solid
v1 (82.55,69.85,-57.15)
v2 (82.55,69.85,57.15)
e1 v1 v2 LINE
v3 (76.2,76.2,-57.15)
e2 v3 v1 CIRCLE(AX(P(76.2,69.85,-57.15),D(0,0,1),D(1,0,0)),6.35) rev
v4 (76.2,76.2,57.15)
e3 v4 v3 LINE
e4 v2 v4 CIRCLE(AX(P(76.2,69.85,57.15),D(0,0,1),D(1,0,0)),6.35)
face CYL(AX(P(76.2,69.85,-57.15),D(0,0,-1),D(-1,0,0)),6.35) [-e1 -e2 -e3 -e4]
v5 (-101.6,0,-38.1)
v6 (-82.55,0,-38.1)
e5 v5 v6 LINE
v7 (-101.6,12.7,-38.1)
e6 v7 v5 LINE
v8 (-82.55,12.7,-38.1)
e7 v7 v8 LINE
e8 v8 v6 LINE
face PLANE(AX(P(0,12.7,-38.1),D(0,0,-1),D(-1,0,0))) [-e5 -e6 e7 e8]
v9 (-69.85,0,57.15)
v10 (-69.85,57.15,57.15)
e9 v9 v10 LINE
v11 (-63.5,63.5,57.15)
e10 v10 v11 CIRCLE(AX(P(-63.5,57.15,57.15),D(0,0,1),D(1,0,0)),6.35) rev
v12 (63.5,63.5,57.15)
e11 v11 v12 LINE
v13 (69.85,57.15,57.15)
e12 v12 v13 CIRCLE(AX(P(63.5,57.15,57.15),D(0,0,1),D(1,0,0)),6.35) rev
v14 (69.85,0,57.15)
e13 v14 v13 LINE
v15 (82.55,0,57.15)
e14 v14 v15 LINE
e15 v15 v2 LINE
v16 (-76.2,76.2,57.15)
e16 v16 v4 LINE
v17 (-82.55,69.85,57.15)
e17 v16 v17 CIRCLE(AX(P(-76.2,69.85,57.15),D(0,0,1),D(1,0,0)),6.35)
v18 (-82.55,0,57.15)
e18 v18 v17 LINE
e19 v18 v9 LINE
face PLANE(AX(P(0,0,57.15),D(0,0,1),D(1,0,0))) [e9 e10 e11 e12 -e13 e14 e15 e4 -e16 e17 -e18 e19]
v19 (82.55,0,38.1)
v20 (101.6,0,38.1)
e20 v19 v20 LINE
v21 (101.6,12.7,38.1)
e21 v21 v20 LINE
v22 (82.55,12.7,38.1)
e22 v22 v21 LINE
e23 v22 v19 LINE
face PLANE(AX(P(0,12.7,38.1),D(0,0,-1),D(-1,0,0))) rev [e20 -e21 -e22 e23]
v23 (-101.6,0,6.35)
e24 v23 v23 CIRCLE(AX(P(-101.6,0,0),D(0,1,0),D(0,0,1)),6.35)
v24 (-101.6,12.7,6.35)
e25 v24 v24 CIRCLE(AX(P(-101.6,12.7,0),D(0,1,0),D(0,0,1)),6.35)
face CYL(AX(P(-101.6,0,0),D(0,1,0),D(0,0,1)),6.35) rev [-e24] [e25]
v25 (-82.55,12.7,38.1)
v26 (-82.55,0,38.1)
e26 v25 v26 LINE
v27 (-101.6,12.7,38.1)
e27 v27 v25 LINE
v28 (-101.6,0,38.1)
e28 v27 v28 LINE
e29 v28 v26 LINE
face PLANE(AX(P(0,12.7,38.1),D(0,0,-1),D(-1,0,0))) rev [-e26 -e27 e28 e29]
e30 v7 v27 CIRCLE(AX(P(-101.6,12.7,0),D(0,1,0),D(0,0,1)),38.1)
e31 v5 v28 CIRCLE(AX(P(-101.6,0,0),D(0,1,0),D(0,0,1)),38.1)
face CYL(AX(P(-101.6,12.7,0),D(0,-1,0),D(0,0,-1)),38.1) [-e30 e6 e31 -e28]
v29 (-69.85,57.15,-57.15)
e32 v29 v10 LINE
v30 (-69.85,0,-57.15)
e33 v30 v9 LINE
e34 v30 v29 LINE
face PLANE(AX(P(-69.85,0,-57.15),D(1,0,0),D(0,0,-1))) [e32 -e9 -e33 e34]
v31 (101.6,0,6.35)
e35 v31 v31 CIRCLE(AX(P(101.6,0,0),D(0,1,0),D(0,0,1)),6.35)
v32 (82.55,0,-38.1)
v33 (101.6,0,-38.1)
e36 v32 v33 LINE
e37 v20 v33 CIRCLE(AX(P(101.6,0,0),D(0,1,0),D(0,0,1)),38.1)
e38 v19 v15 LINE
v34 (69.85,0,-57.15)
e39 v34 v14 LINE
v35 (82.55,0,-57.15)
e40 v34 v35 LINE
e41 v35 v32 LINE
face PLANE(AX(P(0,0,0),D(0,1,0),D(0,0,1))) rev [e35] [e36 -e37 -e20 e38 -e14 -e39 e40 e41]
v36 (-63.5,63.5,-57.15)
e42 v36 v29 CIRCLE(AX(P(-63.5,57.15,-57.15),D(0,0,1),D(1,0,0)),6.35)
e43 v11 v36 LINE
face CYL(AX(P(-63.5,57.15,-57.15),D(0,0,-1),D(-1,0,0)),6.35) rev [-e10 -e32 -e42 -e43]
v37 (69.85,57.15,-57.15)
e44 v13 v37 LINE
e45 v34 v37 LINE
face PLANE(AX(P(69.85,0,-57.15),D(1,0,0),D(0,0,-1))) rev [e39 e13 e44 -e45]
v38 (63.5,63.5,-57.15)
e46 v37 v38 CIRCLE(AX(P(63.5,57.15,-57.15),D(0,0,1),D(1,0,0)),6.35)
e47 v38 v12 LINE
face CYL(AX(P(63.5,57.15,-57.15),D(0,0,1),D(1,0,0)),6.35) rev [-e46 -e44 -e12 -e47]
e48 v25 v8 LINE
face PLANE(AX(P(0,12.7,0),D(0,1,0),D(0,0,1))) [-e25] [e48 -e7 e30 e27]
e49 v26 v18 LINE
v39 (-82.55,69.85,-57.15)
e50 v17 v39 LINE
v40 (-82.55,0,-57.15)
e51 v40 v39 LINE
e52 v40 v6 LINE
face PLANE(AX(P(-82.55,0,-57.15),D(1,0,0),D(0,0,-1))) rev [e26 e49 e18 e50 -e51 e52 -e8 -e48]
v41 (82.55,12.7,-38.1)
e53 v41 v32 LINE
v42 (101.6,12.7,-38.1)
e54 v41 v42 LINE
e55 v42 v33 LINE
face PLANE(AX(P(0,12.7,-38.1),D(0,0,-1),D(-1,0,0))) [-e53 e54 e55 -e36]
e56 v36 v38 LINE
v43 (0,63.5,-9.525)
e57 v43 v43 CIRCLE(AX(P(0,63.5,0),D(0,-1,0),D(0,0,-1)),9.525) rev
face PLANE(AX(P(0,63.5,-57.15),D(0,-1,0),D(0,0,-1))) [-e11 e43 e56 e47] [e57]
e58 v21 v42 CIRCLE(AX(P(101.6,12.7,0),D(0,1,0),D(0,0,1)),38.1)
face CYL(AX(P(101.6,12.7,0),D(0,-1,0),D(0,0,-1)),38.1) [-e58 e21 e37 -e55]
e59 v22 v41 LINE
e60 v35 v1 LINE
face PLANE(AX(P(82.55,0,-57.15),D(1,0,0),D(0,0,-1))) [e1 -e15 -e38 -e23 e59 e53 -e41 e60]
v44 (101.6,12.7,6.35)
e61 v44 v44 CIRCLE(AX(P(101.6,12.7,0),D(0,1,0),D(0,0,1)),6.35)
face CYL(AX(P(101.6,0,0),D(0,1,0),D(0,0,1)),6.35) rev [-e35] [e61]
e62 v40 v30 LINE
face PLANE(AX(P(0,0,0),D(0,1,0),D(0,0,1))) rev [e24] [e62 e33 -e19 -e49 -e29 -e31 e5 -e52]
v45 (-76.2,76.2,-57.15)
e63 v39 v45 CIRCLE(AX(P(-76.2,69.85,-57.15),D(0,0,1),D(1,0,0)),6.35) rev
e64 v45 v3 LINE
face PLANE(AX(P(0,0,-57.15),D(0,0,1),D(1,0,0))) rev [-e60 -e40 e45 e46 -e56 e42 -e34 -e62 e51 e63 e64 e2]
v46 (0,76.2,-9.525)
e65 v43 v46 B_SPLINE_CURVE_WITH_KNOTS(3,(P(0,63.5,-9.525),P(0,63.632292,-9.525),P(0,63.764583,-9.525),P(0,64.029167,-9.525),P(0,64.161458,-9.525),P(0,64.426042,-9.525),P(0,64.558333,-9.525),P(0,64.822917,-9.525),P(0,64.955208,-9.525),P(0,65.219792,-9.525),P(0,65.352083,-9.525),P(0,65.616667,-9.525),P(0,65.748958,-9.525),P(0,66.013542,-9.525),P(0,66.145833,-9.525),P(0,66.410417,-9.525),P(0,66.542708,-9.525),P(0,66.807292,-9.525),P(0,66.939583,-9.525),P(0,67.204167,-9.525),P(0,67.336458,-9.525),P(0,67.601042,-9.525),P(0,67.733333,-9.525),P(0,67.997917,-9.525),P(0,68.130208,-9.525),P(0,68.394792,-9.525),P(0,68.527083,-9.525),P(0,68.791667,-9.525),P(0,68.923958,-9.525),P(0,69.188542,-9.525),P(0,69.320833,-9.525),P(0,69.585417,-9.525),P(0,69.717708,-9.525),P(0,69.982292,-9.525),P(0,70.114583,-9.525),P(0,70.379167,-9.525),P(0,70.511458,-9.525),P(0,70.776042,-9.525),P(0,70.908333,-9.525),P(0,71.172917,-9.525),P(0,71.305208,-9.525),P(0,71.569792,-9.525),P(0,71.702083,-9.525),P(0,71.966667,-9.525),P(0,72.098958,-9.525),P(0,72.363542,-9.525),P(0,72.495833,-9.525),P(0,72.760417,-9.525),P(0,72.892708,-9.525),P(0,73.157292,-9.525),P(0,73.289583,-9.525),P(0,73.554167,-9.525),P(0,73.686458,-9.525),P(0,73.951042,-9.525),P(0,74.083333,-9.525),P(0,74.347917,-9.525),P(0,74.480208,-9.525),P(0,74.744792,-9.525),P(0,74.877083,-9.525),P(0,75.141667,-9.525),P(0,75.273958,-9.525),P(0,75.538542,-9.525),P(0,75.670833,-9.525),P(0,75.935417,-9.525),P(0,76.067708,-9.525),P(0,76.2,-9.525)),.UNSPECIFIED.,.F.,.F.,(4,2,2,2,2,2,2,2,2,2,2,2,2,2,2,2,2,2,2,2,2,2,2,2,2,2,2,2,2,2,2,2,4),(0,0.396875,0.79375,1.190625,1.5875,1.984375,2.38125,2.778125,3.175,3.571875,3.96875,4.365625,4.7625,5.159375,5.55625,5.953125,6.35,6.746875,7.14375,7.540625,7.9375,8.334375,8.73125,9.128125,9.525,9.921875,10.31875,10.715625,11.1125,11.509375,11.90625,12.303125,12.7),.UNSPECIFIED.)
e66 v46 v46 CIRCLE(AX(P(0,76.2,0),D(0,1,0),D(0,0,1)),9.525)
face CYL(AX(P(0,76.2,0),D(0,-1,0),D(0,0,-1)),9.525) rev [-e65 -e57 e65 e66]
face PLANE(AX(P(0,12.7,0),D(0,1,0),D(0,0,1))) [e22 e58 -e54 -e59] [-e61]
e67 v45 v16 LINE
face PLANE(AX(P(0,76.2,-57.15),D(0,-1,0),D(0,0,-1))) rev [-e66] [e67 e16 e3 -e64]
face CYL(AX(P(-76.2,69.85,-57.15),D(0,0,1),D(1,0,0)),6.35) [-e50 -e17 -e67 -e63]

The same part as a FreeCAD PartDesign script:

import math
import FreeCAD as App
import Part
import Sketcher
Q = App.Units.Quantity


def edges_at(feature, points):
    """Names of the edges that pass closest to the given points."""
    edges = feature.Shape.Edges
    near = lambda p: min(range(len(edges)), key=lambda i: edges[i].distToShape(Part.Vertex(*p))[0])
    return sorted({f"Edge{near(p) + 1}" for p in points})

doc = App.newDocument("Part")
params = doc.addObject("Spreadsheet::Sheet", "Params")
for row, (alias, value) in enumerate([
    ("sketch1_radius", "1.5 in"),
    ("sketch1_width", "8 in"),
    ("pad1_length", "0.5 in"),
    ("sketch2_height", "3 in"),
    ("sketch2_width", "0.5 in"),
    ("sketch2_width2", "6.5 in"),
    ("sketch2_height2", "2.5 in"),
    ("pad2_length", "2.25 in"),
    ("pad2_length2", "2.25 in"),
    ("sketch3_diameter", "0.75 in"),
    ("sketch4_width", "5.5 in"),
    ("sketch4_height", "2.5 in"),
    ("fillet_radius", "0.25 in"),
    ("sketch5_diameter", "0.5 in"),
], start=1):
    params.set(f"A{row}", alias)
    params.set(f"B{row}", "=" + value)
    params.setAlias(f"B{row}", alias)

body = doc.addObject("PartDesign::Body", "Body")

# Sketch on XZ plane
sketch1 = body.newObject("Sketcher::SketchObject", "Sketch")
sketch1.AttachmentSupport = (doc.getObject("XZ_Plane"), [""])
sketch1.MapMode = "FlatFace"
sketch1.addGeometry([
    Part.LineSegment(App.Vector(102, -38, 0), App.Vector(-102, -38, 0)),  # 0
    Part.ArcOfCircle(Part.Circle(App.Vector(-102, 0, 0), App.Vector(0, 0, 1), 38), math.radians(90), math.radians(270)),  # 1
    Part.LineSegment(App.Vector(-102, 38, 0), App.Vector(102, 38, 0)),  # 2
    Part.ArcOfCircle(Part.Circle(App.Vector(102, 0, 0), App.Vector(0, 0, 1), 38), math.radians(0), math.radians(90)),  # 3
    Part.ArcOfCircle(Part.Circle(App.Vector(102, 0, 0), App.Vector(0, 0, 1), 38), math.radians(-90), math.radians(0)),  # 4
], False)
sketch1.addConstraint([
    Sketcher.Constraint("Tangent", 0, 2, 1, 2),
    Sketcher.Constraint("Tangent", 1, 1, 2, 1),
    Sketcher.Constraint("Tangent", 2, 2, 3, 2),
    Sketcher.Constraint("Tangent", 3, 1, 4, 2),
    Sketcher.Constraint("Tangent", 4, 1, 0, 1),
    Sketcher.Constraint("Horizontal", 0),
    Sketcher.Constraint("Horizontal", 2),
    Sketcher.Constraint("Equal", 1, 3),
    Sketcher.Constraint("Symmetric", 1, 3, 3, 3, -1, 1),
    Sketcher.Constraint("PointOnObject", 3, 1, -1),
    Sketcher.Constraint("Radius", 1, Q("1.5 in")),
    Sketcher.Constraint("DistanceX", 0, 2, 0, 1, Q("8 in")),
])
sketch1.setExpression("Constraints[10]", "Params.sketch1_radius")
sketch1.setExpression("Constraints[11]", "Params.sketch1_width")
pad1 = body.newObject("PartDesign::Pad", "Pad")
pad1.Profile = sketch1
pad1.setExpression("Length", "Params.pad1_length")
pad1.Reversed = True

# Sketch on XY plane
sketch2 = body.newObject("Sketcher::SketchObject", "Sketch001")
sketch2.AttachmentSupport = (doc.getObject("XY_Plane"), [""])
sketch2.MapMode = "FlatFace"
sketch2.addGeometry([
    Part.LineSegment(App.Vector(70, 64, 0), App.Vector(70, 0, 0)),  # 0
    Part.LineSegment(App.Vector(70, 0, 0), App.Vector(83, 0, 0)),  # 1
    Part.LineSegment(App.Vector(83, 0, 0), App.Vector(83, 76, 0)),  # 2
    Part.LineSegment(App.Vector(83, 76, 0), App.Vector(-83, 76, 0)),  # 3
    Part.LineSegment(App.Vector(-83, 76, 0), App.Vector(-83, 0, 0)),  # 4
    Part.LineSegment(App.Vector(-83, 0, 0), App.Vector(-70, 0, 0)),  # 5
    Part.LineSegment(App.Vector(-70, 0, 0), App.Vector(-70, 64, 0)),  # 6
    Part.LineSegment(App.Vector(-70, 64, 0), App.Vector(70, 64, 0)),  # 7
], False)
sketch2.addConstraint([
    Sketcher.Constraint("Coincident", 0, 2, 1, 1),
    Sketcher.Constraint("Coincident", 1, 2, 2, 1),
    Sketcher.Constraint("Coincident", 2, 2, 3, 1),
    Sketcher.Constraint("Coincident", 3, 2, 4, 1),
    Sketcher.Constraint("Coincident", 4, 2, 5, 1),
    Sketcher.Constraint("Coincident", 5, 2, 6, 1),
    Sketcher.Constraint("Coincident", 6, 2, 7, 1),
    Sketcher.Constraint("Coincident", 7, 2, 0, 1),
    Sketcher.Constraint("Vertical", 0),
    Sketcher.Constraint("Horizontal", 1),
    Sketcher.Constraint("Vertical", 2),
    Sketcher.Constraint("Horizontal", 3),
    Sketcher.Constraint("Vertical", 4),
    Sketcher.Constraint("Horizontal", 5),
    Sketcher.Constraint("Vertical", 6),
    Sketcher.Constraint("Horizontal", 7),
    Sketcher.Constraint("Symmetric", 1, 2, 4, 2, -1, 1),
    Sketcher.Constraint("Symmetric", 0, 2, 5, 2, -2),
    Sketcher.Constraint("DistanceY", 2, 1, 2, 2, Q("3 in")),
    Sketcher.Constraint("DistanceX", 1, 1, 1, 2, Q("0.5 in")),
    Sketcher.Constraint("DistanceX", 3, 2, 3, 1, Q("6.5 in")),
    Sketcher.Constraint("DistanceY", 0, 2, 0, 1, Q("2.5 in")),
])
sketch2.setExpression("Constraints[18]", "Params.sketch2_height")
sketch2.setExpression("Constraints[19]", "Params.sketch2_width")
sketch2.setExpression("Constraints[20]", "Params.sketch2_width2")
sketch2.setExpression("Constraints[21]", "Params.sketch2_height2")
pad2 = body.newObject("PartDesign::Pad", "Pad001")
pad2.Profile = sketch2
pad2.Type = "TwoLengths"
pad2.setExpression("Length", "Params.pad2_length")
pad2.setExpression("Length2", "Params.pad2_length2")

# Sketch on XZ plane
sketch3 = body.newObject("Sketcher::SketchObject", "Sketch002")
sketch3.AttachmentSupport = (doc.getObject("XZ_Plane"), [""])
sketch3.MapMode = "FlatFace"
sketch3.addGeometry(Part.Circle(App.Vector(0, 0, 0), App.Vector(0, 0, 1), 10), False)
sketch3.addConstraint([
    Sketcher.Constraint("Coincident", 0, 3, -1, 1),
    Sketcher.Constraint("Diameter", 0, Q("0.75 in")),
])
sketch3.setExpression("Constraints[1]", "Params.sketch3_diameter")
pocket1 = body.newObject("PartDesign::Pocket", "Pocket")
pocket1.Profile = sketch3
pocket1.Type = "ThroughAll"

# Sketch on XY plane
sketch4 = body.newObject("Sketcher::SketchObject", "Sketch003")
sketch4.AttachmentSupport = (doc.getObject("XY_Plane"), [""])
sketch4.MapMode = "FlatFace"
sketch4.AttachmentOffset = App.Placement(App.Vector(0, 0, 2.25 * 25.4), App.Rotation())
sketch4.addGeometry([
    Part.LineSegment(App.Vector(-70, 64, 0), App.Vector(-70, 0, 0)),
    Part.LineSegment(App.Vector(-70, 0, 0), App.Vector(70, 0, 0)),
    Part.LineSegment(App.Vector(70, 0, 0), App.Vector(70, 64, 0)),
    Part.LineSegment(App.Vector(70, 64, 0), App.Vector(-70, 64, 0)),
], False)
sketch4.addConstraint([
    Sketcher.Constraint("Coincident", 0, 2, 1, 1),
    Sketcher.Constraint("Coincident", 1, 2, 2, 1),
    Sketcher.Constraint("Coincident", 2, 2, 3, 1),
    Sketcher.Constraint("Coincident", 3, 2, 0, 1),
    Sketcher.Constraint("Vertical", 0),
    Sketcher.Constraint("Horizontal", 1),
    Sketcher.Constraint("Vertical", 2),
    Sketcher.Constraint("Horizontal", 3),
    Sketcher.Constraint("Symmetric", 0, 2, 1, 2, -1, 1),
    Sketcher.Constraint("DistanceX", 1, 1, 1, 2, Q("5.5 in")),
    Sketcher.Constraint("DistanceY", 0, 2, 0, 1, Q("2.5 in")),
])
sketch4.setExpression("Constraints[9]", "Params.sketch4_width")
sketch4.setExpression("Constraints[10]", "Params.sketch4_height")
pocket2 = body.newObject("PartDesign::Pocket", "Pocket001")
pocket2.Profile = sketch4
pocket2.Type = "ThroughAll"
doc.recompute()

fillet = body.newObject("PartDesign::Fillet", "Fillet")
fillet.Base = (pocket2, edges_at(pocket2, [
    (-69.85, 63.5, 0),
    (82.55, 76.2, 0),
    (69.85, 63.5, 0),
    (-82.55, 76.2, 0),
]))
fillet.setExpression("Radius", "Params.fillet_radius")

# Sketch on XZ plane
sketch5 = body.newObject("Sketcher::SketchObject", "Sketch004")
sketch5.AttachmentSupport = (doc.getObject("XZ_Plane"), [""])
sketch5.MapMode = "FlatFace"
sketch5.AttachmentOffset = App.Placement(App.Vector(0, 0, -0.5 * 25.4), App.Rotation())
sketch5.addGeometry([
    Part.Circle(App.Vector(102, 0, 0), App.Vector(0, 0, 1), 6),
    Part.Circle(App.Vector(-102, 0, 0), App.Vector(0, 0, 1), 6),
], False)
sketch5.addConstraint([
    Sketcher.Constraint("Equal", 0, 1),
    Sketcher.Constraint("Symmetric", 0, 3, 1, 3, -1, 1),
    Sketcher.Constraint("PointOnObject", 0, 3, -1),
    Sketcher.Constraint("Diameter", 0, Q("0.5 in")),
    Sketcher.Constraint("DistanceX", -1, 1, 0, 3, Q("4 in")),
])
sketch5.setExpression("Constraints[3]", "Params.sketch5_diameter")
pocket3 = body.newObject("PartDesign::Pocket", "Pocket002")
pocket3.Profile = sketch5
pocket3.Type = "ThroughAll"
pocket3.Reversed = True

doc.recompute()
